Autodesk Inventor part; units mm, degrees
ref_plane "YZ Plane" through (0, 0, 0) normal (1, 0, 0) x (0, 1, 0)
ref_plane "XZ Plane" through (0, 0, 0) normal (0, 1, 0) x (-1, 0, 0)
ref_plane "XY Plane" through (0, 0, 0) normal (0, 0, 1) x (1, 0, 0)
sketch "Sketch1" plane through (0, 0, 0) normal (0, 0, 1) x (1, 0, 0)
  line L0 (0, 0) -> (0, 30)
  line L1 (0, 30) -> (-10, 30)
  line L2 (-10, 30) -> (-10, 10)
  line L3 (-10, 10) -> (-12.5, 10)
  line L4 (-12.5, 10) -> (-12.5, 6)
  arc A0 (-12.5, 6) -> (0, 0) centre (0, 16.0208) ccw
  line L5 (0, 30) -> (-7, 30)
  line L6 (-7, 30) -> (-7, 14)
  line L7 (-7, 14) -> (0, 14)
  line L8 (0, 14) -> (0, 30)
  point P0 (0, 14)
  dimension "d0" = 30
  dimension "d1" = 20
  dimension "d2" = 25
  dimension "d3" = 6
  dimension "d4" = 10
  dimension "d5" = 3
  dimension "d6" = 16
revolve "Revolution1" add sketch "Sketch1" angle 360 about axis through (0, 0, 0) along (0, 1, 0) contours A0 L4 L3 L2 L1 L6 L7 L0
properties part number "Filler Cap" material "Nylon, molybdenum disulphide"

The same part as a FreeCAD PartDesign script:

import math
import FreeCAD as App
import Part
import Sketcher
Q = App.Units.Quantity

doc = App.newDocument("Part")
body = doc.addObject("PartDesign::Body", "Body")

sketch1 = body.newObject("Sketcher::SketchObject", "Sketch")
sketch1.AttachmentSupport = (doc.getObject("XY_Plane"), [""])
sketch1.MapMode = "FlatFace"
sketch1.addGeometry([
    Part.ArcOfCircle(Part.Circle(App.Vector(0, 16, 0), App.Vector(0, 0, 1), 16), math.radians(-141), math.radians(-90)),
    Part.LineSegment(App.Vector(0, 0, 0), App.Vector(0, 14, 0)),
    Part.LineSegment(App.Vector(0, 14, 0), App.Vector(-7, 14, 0)),
    Part.LineSegment(App.Vector(-7, 14, 0), App.Vector(-7, 30, 0)),
    Part.LineSegment(App.Vector(-7, 30, 0), App.Vector(-10, 30, 0)),
    Part.LineSegment(App.Vector(-10, 30, 0), App.Vector(-10, 10, 0)),
    Part.LineSegment(App.Vector(-10, 10, 0), App.Vector(-12.5, 10, 0)),
    Part.LineSegment(App.Vector(-12.5, 10, 0), App.Vector(-12.5, 6, 0)),
], False)
sketch1.addConstraint([
    Sketcher.Constraint("Coincident", 0, 2, 1, 1),
    Sketcher.Constraint("Coincident", 1, 2, 2, 1),
    Sketcher.Constraint("Coincident", 2, 2, 3, 1),
    Sketcher.Constraint("Coincident", 3, 2, 4, 1),
    Sketcher.Constraint("Coincident", 4, 2, 5, 1),
    Sketcher.Constraint("Coincident", 5, 2, 6, 1),
    Sketcher.Constraint("Coincident", 6, 2, 7, 1),
    Sketcher.Constraint("Coincident", 7, 2, 0, 1),
    Sketcher.Constraint("Vertical", 1),
    Sketcher.Constraint("Horizontal", 2),
    Sketcher.Constraint("Vertical", 3),
    Sketcher.Constraint("Horizontal", 4),
    Sketcher.Constraint("Vertical", 5),
    Sketcher.Constraint("Horizontal", 6),
    Sketcher.Constraint("Vertical", 7),
    Sketcher.Constraint("Coincident", 0, 2, -1, 1),
    Sketcher.Constraint("PointOnObject", 0, 3, -2),
    Sketcher.Constraint("DistanceX", 4, 2, 4, 1, Q("3 mm")),
    Sketcher.Constraint("DistanceY", 3, 1, 3, 2, Q("16 mm")),
    Sketcher.Constraint("DistanceY", 5, 2, 5, 1, Q("20 mm")),
    Sketcher.Constraint("DistanceY", -1, 1, 3, 2, Q("30 mm")),
    Sketcher.Constraint("DistanceX", 4, 2, -1, 1, Q("10 mm")),
    Sketcher.Constraint("DistanceY", -1, 1, 7, 2, Q("6 mm")),
    Sketcher.Constraint("DistanceX", 6, 2, 6, 1, Q("2.5 mm")),
])
revolution = body.newObject("PartDesign::Revolution", "Revolution")
revolution.Profile = sketch1
revolution.ReferenceAxis = (sketch1, ["V_Axis"])
revolution.Angle = 360

doc.recompute()
